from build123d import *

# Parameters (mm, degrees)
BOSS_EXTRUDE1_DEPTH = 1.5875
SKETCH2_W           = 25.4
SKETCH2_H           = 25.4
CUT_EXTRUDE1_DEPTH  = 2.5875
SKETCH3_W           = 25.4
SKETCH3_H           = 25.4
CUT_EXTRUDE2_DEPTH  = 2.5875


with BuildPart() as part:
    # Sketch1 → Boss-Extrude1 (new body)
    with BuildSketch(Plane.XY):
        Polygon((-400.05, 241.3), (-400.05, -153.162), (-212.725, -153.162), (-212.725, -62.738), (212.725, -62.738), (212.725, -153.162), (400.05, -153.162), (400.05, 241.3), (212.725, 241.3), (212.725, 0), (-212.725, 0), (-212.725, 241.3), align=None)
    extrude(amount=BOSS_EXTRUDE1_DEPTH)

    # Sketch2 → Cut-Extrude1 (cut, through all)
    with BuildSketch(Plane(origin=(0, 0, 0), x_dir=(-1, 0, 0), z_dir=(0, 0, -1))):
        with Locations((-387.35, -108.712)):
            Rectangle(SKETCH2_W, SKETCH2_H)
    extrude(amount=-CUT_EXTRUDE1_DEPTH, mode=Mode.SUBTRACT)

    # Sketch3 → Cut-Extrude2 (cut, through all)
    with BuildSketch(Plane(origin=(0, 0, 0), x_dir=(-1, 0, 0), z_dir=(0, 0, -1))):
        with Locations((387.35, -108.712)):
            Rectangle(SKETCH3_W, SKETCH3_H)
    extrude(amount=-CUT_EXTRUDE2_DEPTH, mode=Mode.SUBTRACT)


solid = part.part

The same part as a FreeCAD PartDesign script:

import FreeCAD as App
import Part
import Sketcher
from FreeCAD import Vector
Q = App.Units.Quantity

doc = App.newDocument("Part")
params = doc.addObject("Spreadsheet::Sheet", "Params")
for row, (alias, value) in enumerate([
    ("sketch1_height", "9.5 in"),
    ("sketch1_width", "16.75 in"),
    ("sketch1_height2", "15.53 in"),
    ("sketch1_height3", "3.56 in"),
    ("pad1_length", "0.0625 in"),
    ("sketch2_width", "1 in"),
    ("sketch3_width", "1 in"),
], start=1):
    params.set(f"A{row}", alias)
    params.set(f"B{row}", "=" + value)
    params.setAlias(f"B{row}", alias)

body = doc.addObject("PartDesign::Body", "Body")

sketch1 = doc.addObject("Sketcher::SketchObject", "Sketch")
body.addObject(sketch1)
sketch1.AttachmentSupport = (doc.XY_Plane, [""])
sketch1.MapMode = "FlatFace"
sketch1.addGeometry(Part.LineSegment(Vector(-400, 241, 0), Vector(-400, -153, 0)), False)
sketch1.addGeometry(Part.LineSegment(Vector(-400, -153, 0), Vector(-213, -153, 0)), False)
sketch1.addGeometry(Part.LineSegment(Vector(-213, -153, 0), Vector(-213, -63, 0)), False)
sketch1.addGeometry(Part.LineSegment(Vector(-213, -63, 0), Vector(213, -63, 0)), False)
sketch1.addGeometry(Part.LineSegment(Vector(213, -63, 0), Vector(213, -153, 0)), False)
sketch1.addGeometry(Part.LineSegment(Vector(213, -153, 0), Vector(400, -153, 0)), False)
sketch1.addGeometry(Part.LineSegment(Vector(400, -153, 0), Vector(400, 241, 0)), False)
sketch1.addGeometry(Part.LineSegment(Vector(400, 241, 0), Vector(213, 241, 0)), False)
sketch1.addGeometry(Part.LineSegment(Vector(213, 241, 0), Vector(213, 0, 0)), False)
sketch1.addGeometry(Part.LineSegment(Vector(213, 0, 0), Vector(-213, 0, 0)), False)
sketch1.addGeometry(Part.LineSegment(Vector(-213, 0, 0), Vector(-213, 241, 0)), False)
sketch1.addGeometry(Part.LineSegment(Vector(-213, 241, 0), Vector(-400, 241, 0)), False)
sketch1.addConstraint(Sketcher.Constraint("Coincident", 0, 2, 1, 1))
sketch1.addConstraint(Sketcher.Constraint("Coincident", 1, 2, 2, 1))
sketch1.addConstraint(Sketcher.Constraint("Coincident", 2, 2, 3, 1))
sketch1.addConstraint(Sketcher.Constraint("Coincident", 3, 2, 4, 1))
sketch1.addConstraint(Sketcher.Constraint("Coincident", 4, 2, 5, 1))
sketch1.addConstraint(Sketcher.Constraint("Coincident", 5, 2, 6, 1))
sketch1.addConstraint(Sketcher.Constraint("Coincident", 6, 2, 7, 1))
sketch1.addConstraint(Sketcher.Constraint("Coincident", 7, 2, 8, 1))
sketch1.addConstraint(Sketcher.Constraint("Coincident", 8, 2, 9, 1))
sketch1.addConstraint(Sketcher.Constraint("Coincident", 9, 2, 10, 1))
sketch1.addConstraint(Sketcher.Constraint("Coincident", 10, 2, 11, 1))
sketch1.addConstraint(Sketcher.Constraint("Coincident", 11, 2, 0, 1))
sketch1.addConstraint(Sketcher.Constraint("Vertical", 0))
sketch1.addConstraint(Sketcher.Constraint("Horizontal", 1))
sketch1.addConstraint(Sketcher.Constraint("Vertical", 2))
sketch1.addConstraint(Sketcher.Constraint("Horizontal", 3))
sketch1.addConstraint(Sketcher.Constraint("Vertical", 4))
sketch1.addConstraint(Sketcher.Constraint("Horizontal", 5))
sketch1.addConstraint(Sketcher.Constraint("Vertical", 6))
sketch1.addConstraint(Sketcher.Constraint("Horizontal", 7))
sketch1.addConstraint(Sketcher.Constraint("Vertical", 8))
sketch1.addConstraint(Sketcher.Constraint("Horizontal", 9))
sketch1.addConstraint(Sketcher.Constraint("Vertical", 10))
sketch1.addConstraint(Sketcher.Constraint("Horizontal", 11))
sketch1.addConstraint(Sketcher.Constraint("Symmetric", 8, 2, 9, 2, -1, 1))
sketch1.addConstraint(Sketcher.Constraint("Symmetric", 1, 2, 4, 2, -2))
sketch1.addConstraint(Sketcher.Constraint("Symmetric", 6, 2, 11, 2, -2))
sketch1.addConstraint(Sketcher.Constraint("Vertical", 4, 2, 7, 2))
sketch1.addConstraint(Sketcher.Constraint("DistanceY", 8, 2, 8, 1, Q("9.5 in")))
sketch1.addConstraint(Sketcher.Constraint("DistanceX", 3, 1, 3, 2, Q("16.75 in")))
sketch1.addConstraint(Sketcher.Constraint("DistanceY", 0, 2, 0, 1, Q("15.53 in")))
sketch1.addConstraint(Sketcher.Constraint("DistanceY", 2, 1, 2, 2, Q("3.56 in")))
sketch1.addConstraint(Sketcher.Constraint("DistanceX", 0, 2, 5, 2, Q("31.5 in")))
sketch1.setExpression("Constraints[28]", "Params.sketch1_height")
sketch1.setExpression("Constraints[29]", "Params.sketch1_width")
sketch1.setExpression("Constraints[30]", "Params.sketch1_height2")
sketch1.setExpression("Constraints[31]", "Params.sketch1_height3")
pad1 = doc.addObject("PartDesign::Pad", "Pad")
body.addObject(pad1)
pad1.Profile = sketch1
pad1.setExpression("Length", "Params.pad1_length")

sketch2 = doc.addObject("Sketcher::SketchObject", "Sketch001")
body.addObject(sketch2)
sketch2.AttachmentSupport = (doc.XY_Plane, [""])
sketch2.MapMode = "FlatFace"
sketch2.addGeometry(Part.LineSegment(Vector(400, -96, 0), Vector(400, -121, 0)), False)
sketch2.addGeometry(Part.LineSegment(Vector(400, -121, 0), Vector(375, -121, 0)), False)
sketch2.addGeometry(Part.LineSegment(Vector(375, -121, 0), Vector(375, -96, 0)), False)
sketch2.addGeometry(Part.LineSegment(Vector(375, -96, 0), Vector(400, -96, 0)), False)
sketch2.addConstraint(Sketcher.Constraint("Coincident", 0, 2, 1, 1))
sketch2.addConstraint(Sketcher.Constraint("Coincident", 1, 2, 2, 1))
sketch2.addConstraint(Sketcher.Constraint("Coincident", 2, 2, 3, 1))
sketch2.addConstraint(Sketcher.Constraint("Coincident", 3, 2, 0, 1))
sketch2.addConstraint(Sketcher.Constraint("Vertical", 0))
sketch2.addConstraint(Sketcher.Constraint("Horizontal", 1))
sketch2.addConstraint(Sketcher.Constraint("Vertical", 2))
sketch2.addConstraint(Sketcher.Constraint("Horizontal", 3))
sketch2.addConstraint(Sketcher.Constraint("Equal", 3, 0))
sketch2.addConstraint(Sketcher.Constraint("DistanceX", 1, 2, 1, 1, Q("1 in")))
sketch2.addConstraint(Sketcher.Constraint("DistanceX", -1, 1, 0, 2, Q("15.75 in")))
sketch2.addConstraint(Sketcher.Constraint("DistanceY", 0, 2, -1, 1, Q("4.78 in")))
sketch2.setExpression("Constraints[9]", "Params.sketch2_width")
pocket1 = doc.addObject("PartDesign::Pocket", "Pocket")
body.addObject(pocket1)
pocket1.Profile = sketch2
pocket1.Type = "ThroughAll"
pocket1.Reversed = True

sketch3 = doc.addObject("Sketcher::SketchObject", "Sketch002")
body.addObject(sketch3)
sketch3.AttachmentSupport = (doc.XY_Plane, [""])
sketch3.MapMode = "FlatFace"
sketch3.addGeometry(Part.LineSegment(Vector(-375, -96, 0), Vector(-375, -121, 0)), False)
sketch3.addGeometry(Part.LineSegment(Vector(-375, -121, 0), Vector(-400, -121, 0)), False)
sketch3.addGeometry(Part.LineSegment(Vector(-400, -121, 0), Vector(-400, -96, 0)), False)
sketch3.addGeometry(Part.LineSegment(Vector(-400, -96, 0), Vector(-375, -96, 0)), False)
sketch3.addConstraint(Sketcher.Constraint("Coincident", 0, 2, 1, 1))
sketch3.addConstraint(Sketcher.Constraint("Coincident", 1, 2, 2, 1))
sketch3.addConstraint(Sketcher.Constraint("Coincident", 2, 2, 3, 1))
sketch3.addConstraint(Sketcher.Constraint("Coincident", 3, 2, 0, 1))
sketch3.addConstraint(Sketcher.Constraint("Vertical", 0))
sketch3.addConstraint(Sketcher.Constraint("Horizontal", 1))
sketch3.addConstraint(Sketcher.Constraint("Vertical", 2))
sketch3.addConstraint(Sketcher.Constraint("Horizontal", 3))
sketch3.addConstraint(Sketcher.Constraint("Equal", 3, 0))
sketch3.addConstraint(Sketcher.Constraint("DistanceX", 1, 2, 1, 1, Q("1 in")))
sketch3.addConstraint(Sketcher.Constraint("DistanceX", 0, 2, -1, 1, Q("14.75 in")))
sketch3.addConstraint(Sketcher.Constraint("DistanceY", 0, 2, -1, 1, Q("4.78 in")))
sketch3.setExpression("Constraints[9]", "Params.sketch3_width")
pocket2 = doc.addObject("PartDesign::Pocket", "Pocket001")
body.addObject(pocket2)
pocket2.Profile = sketch3
pocket2.Type = "ThroughAll"
pocket2.Reversed = True

doc.recompute()
